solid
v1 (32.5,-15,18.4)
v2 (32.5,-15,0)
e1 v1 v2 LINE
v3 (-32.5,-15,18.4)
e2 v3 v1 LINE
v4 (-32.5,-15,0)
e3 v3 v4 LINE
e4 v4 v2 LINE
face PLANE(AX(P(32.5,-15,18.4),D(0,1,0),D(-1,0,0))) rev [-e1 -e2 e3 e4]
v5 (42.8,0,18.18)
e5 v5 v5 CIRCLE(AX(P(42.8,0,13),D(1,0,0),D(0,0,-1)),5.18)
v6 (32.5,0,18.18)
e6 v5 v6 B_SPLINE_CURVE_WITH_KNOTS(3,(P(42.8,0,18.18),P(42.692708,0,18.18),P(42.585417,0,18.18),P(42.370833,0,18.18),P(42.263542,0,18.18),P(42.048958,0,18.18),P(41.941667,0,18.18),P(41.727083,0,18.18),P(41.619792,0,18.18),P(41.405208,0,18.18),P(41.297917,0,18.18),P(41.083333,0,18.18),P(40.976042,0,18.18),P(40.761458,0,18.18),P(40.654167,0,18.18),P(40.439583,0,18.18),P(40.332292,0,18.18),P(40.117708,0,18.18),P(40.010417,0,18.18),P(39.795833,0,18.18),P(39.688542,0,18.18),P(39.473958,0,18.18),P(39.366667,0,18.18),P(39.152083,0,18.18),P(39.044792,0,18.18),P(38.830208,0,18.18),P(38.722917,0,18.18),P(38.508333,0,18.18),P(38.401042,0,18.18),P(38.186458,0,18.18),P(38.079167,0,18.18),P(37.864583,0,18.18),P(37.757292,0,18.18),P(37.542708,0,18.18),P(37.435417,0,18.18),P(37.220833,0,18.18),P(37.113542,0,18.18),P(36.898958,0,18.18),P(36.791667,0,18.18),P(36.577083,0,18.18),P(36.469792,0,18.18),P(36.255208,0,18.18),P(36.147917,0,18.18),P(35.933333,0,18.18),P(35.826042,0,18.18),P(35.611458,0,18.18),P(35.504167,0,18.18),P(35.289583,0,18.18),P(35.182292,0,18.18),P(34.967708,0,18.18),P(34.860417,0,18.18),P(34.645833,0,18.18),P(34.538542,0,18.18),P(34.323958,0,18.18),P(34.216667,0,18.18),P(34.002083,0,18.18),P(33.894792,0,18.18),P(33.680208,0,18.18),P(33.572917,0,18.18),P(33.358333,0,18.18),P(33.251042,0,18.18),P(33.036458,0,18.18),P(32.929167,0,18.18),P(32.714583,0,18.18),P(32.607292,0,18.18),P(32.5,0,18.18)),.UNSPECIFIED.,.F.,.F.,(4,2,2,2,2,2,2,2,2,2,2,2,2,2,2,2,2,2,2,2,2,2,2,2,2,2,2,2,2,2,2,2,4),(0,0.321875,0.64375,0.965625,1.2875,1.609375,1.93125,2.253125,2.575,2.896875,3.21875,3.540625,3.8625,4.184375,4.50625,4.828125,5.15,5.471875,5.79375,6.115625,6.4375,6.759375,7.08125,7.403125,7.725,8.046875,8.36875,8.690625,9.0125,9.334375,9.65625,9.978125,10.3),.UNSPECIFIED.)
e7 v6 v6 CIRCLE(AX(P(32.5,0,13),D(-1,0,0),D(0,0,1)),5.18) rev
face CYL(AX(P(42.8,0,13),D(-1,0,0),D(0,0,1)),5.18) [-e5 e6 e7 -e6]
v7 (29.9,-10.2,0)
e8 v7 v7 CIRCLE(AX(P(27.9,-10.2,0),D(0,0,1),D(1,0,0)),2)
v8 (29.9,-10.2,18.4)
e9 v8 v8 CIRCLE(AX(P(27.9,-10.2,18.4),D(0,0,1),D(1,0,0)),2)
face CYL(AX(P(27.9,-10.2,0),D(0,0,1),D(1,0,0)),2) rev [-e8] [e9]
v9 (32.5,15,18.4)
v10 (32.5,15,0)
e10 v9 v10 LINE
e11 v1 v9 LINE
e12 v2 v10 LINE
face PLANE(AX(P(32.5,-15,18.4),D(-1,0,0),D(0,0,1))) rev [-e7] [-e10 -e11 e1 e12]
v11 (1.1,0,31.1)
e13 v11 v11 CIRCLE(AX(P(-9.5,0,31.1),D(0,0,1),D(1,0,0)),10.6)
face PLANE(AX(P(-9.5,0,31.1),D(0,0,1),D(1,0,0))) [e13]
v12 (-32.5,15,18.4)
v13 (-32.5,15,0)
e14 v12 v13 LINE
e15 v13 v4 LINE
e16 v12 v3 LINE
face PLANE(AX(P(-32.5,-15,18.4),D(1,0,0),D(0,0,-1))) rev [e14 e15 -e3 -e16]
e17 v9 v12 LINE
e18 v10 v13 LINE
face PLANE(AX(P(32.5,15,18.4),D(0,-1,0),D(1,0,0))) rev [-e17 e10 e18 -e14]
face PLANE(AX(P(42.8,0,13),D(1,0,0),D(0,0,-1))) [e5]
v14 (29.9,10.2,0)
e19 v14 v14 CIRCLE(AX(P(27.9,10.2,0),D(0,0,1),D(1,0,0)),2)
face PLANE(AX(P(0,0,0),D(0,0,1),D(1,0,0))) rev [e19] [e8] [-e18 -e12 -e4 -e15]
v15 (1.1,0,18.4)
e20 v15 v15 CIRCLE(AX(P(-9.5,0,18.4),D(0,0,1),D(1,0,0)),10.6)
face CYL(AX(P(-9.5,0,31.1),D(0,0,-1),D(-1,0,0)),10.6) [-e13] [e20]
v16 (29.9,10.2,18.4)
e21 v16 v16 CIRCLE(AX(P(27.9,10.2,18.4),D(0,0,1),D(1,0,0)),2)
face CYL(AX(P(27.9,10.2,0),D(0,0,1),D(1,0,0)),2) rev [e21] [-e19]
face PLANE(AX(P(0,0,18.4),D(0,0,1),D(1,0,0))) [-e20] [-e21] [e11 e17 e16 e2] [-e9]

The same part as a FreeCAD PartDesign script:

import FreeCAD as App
import Part
import Sketcher
Q = App.Units.Quantity

doc = App.newDocument("Part")
params = doc.addObject("Spreadsheet::Sheet", "Params")
for row, (alias, value) in enumerate([
    ("sketch1_width", "65 mm"),
    ("sketch1_height", "30 mm"),
    ("pad1_length", "18.4 mm"),
    ("sketch2_diameter", "21.2 mm"),
    ("pad2_length", "12.7 mm"),
    ("sketch3_diameter", "4 mm"),
    ("sketch4_diameter", "4 mm"),
    ("sketch5_diameter", "10.36 mm"),
    ("pad3_length", "10.3 mm"),
], start=1):
    params.set(f"A{row}", alias)
    params.set(f"B{row}", "=" + value)
    params.setAlias(f"B{row}", alias)

body = doc.addObject("PartDesign::Body", "Body")

sketch1 = body.newObject("Sketcher::SketchObject", "Sketch")
sketch1.AttachmentSupport = (doc.getObject("XY_Plane"), [""])
sketch1.MapMode = "FlatFace"
sketch1.addGeometry([
    Part.LineSegment(App.Vector(-32.5, 15, 0), App.Vector(-32.5, -15, 0)),
    Part.LineSegment(App.Vector(-32.5, -15, 0), App.Vector(32.5, -15, 0)),
    Part.LineSegment(App.Vector(32.5, -15, 0), App.Vector(32.5, 15, 0)),
    Part.LineSegment(App.Vector(32.5, 15, 0), App.Vector(-32.5, 15, 0)),
], False)
sketch1.addConstraint([
    Sketcher.Constraint("Coincident", 0, 2, 1, 1),
    Sketcher.Constraint("Coincident", 1, 2, 2, 1),
    Sketcher.Constraint("Coincident", 2, 2, 3, 1),
    Sketcher.Constraint("Coincident", 3, 2, 0, 1),
    Sketcher.Constraint("Vertical", 0),
    Sketcher.Constraint("Horizontal", 1),
    Sketcher.Constraint("Vertical", 2),
    Sketcher.Constraint("Horizontal", 3),
    Sketcher.Constraint("Symmetric", 0, 2, 2, 2, -1, 1),
    Sketcher.Constraint("DistanceX", 1, 1, 1, 2, Q("65 mm")),
    Sketcher.Constraint("DistanceY", 0, 2, 0, 1, Q("30 mm")),
])
sketch1.setExpression("Constraints[9]", "Params.sketch1_width")
sketch1.setExpression("Constraints[10]", "Params.sketch1_height")
pad1 = body.newObject("PartDesign::Pad", "Pad")
pad1.Profile = sketch1
pad1.setExpression("Length", "Params.pad1_length")

sketch2 = body.newObject("Sketcher::SketchObject", "Sketch001")
sketch2.AttachmentSupport = (doc.getObject("XY_Plane"), [""])
sketch2.MapMode = "FlatFace"
sketch2.AttachmentOffset = App.Placement(App.Vector(0, 0, 18.4), App.Rotation())
sketch2.addGeometry(Part.Circle(App.Vector(-9.5, 0, 0), App.Vector(0, 0, 1), 10.6), False)
sketch2.addConstraint([
    Sketcher.Constraint("PointOnObject", 0, 3, -1),
    Sketcher.Constraint("Diameter", 0, Q("21.2 mm")),
    Sketcher.Constraint("DistanceX", 0, 3, -1, 1, Q("9.5 mm")),
])
sketch2.setExpression("Constraints[1]", "Params.sketch2_diameter")
pad2 = body.newObject("PartDesign::Pad", "Pad001")
pad2.Profile = sketch2
pad2.setExpression("Length", "Params.pad2_length")

sketch3 = body.newObject("Sketcher::SketchObject", "Sketch002")
sketch3.AttachmentSupport = (doc.getObject("XY_Plane"), [""])
sketch3.MapMode = "FlatFace"
sketch3.AttachmentOffset = App.Placement(App.Vector(0, 0, 18.4), App.Rotation())
sketch3.addGeometry(Part.Circle(App.Vector(27.9, -10.2, 0), App.Vector(0, 0, 1), 2), False)
sketch3.addConstraint([
    Sketcher.Constraint("Diameter", 0, Q("4 mm")),
    Sketcher.Constraint("DistanceX", -1, 1, 0, 3, Q("27.9 mm")),
    Sketcher.Constraint("DistanceY", 0, 3, -1, 1, Q("10.2 mm")),
])
sketch3.setExpression("Constraints[0]", "Params.sketch3_diameter")
pocket1 = body.newObject("PartDesign::Pocket", "Pocket")
pocket1.Profile = sketch3
pocket1.Type = "ThroughAll"

sketch4 = body.newObject("Sketcher::SketchObject", "Sketch003")
sketch4.AttachmentSupport = (doc.getObject("XY_Plane"), [""])
sketch4.MapMode = "FlatFace"
sketch4.AttachmentOffset = App.Placement(App.Vector(0, 0, 18.4), App.Rotation())
sketch4.addGeometry(Part.Circle(App.Vector(27.9, 10.2, 0), App.Vector(0, 0, 1), 2), False)
sketch4.addConstraint([
    Sketcher.Constraint("Diameter", 0, Q("4 mm")),
    Sketcher.Constraint("DistanceX", -1, 1, 0, 3, Q("27.9 mm")),
    Sketcher.Constraint("DistanceY", -1, 1, 0, 3, Q("10.2 mm")),
])
sketch4.setExpression("Constraints[0]", "Params.sketch4_diameter")
pocket2 = body.newObject("PartDesign::Pocket", "Pocket001")
pocket2.Profile = sketch4
pocket2.Type = "ThroughAll"

sketch5 = body.newObject("Sketcher::SketchObject", "Sketch004")
sketch5.AttachmentSupport = (doc.getObject("YZ_Plane"), [""])
sketch5.MapMode = "FlatFace"
sketch5.AttachmentOffset = App.Placement(App.Vector(0, 0, 32.5), App.Rotation())
sketch5.addGeometry(Part.Circle(App.Vector(0, 13, 0), App.Vector(0, 0, 1), 5.18), False)
sketch5.addConstraint([
    Sketcher.Constraint("PointOnObject", 0, 3, -2),
    Sketcher.Constraint("Diameter", 0, Q("10.36 mm")),
    Sketcher.Constraint("DistanceY", -1, 1, 0, 3, Q("13 mm")),
])
sketch5.setExpression("Constraints[1]", "Params.sketch5_diameter")
pad3 = body.newObject("PartDesign::Pad", "Pad002")
pad3.Profile = sketch5
pad3.setExpression("Length", "Params.pad3_length")

doc.recompute()
